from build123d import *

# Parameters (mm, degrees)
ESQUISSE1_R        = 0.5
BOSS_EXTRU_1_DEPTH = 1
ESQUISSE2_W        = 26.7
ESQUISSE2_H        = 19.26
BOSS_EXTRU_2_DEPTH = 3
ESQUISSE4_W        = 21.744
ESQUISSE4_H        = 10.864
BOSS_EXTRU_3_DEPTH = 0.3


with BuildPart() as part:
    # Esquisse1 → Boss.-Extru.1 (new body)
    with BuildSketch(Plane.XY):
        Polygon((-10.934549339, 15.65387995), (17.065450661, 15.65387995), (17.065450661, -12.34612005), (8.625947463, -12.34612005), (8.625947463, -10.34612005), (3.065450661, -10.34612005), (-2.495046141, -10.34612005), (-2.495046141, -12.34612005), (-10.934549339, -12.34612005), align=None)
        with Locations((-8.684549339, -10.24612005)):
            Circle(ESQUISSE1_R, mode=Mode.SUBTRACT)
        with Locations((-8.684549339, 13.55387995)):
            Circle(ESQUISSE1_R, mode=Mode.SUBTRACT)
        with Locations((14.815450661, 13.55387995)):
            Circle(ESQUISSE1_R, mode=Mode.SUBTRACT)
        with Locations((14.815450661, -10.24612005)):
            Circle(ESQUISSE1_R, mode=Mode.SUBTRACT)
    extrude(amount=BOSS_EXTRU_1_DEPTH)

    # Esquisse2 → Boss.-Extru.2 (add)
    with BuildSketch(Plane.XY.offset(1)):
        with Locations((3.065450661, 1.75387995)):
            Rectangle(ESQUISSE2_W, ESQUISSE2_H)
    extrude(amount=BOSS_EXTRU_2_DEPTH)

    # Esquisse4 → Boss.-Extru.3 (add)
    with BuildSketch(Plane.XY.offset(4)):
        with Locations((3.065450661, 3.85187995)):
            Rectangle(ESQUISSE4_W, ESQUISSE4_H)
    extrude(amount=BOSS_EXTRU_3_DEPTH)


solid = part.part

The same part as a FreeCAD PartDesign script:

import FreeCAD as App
import Part
import Sketcher
from FreeCAD import Vector


def add_polygon(sketch, points):
    """Adds a closed chain of lines whose ends are joined by coincident constraints."""
    first, n = sketch.GeometryCount, len(points)
    for a, b in zip(points, points[1:] + points[:1]):
        sketch.addGeometry(Part.LineSegment(App.Vector(*a, 0), App.Vector(*b, 0)), False)
    for i in range(n):
        sketch.addConstraint(Sketcher.Constraint("Coincident", first + i, 2, first + (i + 1) % n, 1))

doc = App.newDocument("Part")
params = doc.addObject("Spreadsheet::Sheet", "Params")
for row, (alias, value) in enumerate([
    ("sketch1_diameter", "1 mm"),
    ("sketch1_width", "28 mm"),
    ("sketch1_height", "2 mm"),
    ("pad1_length", "1 mm"),
    ("sketch2_width", "26.7 mm"),
    ("sketch2_height", "19.26 mm"),
    ("pad2_length", "3 mm"),
    ("pad3_length", "0.3 mm"),
], start=1):
    params.set(f"A{row}", alias)
    params.set(f"B{row}", "=" + value)
    params.setAlias(f"B{row}", alias)

body = doc.addObject("PartDesign::Body", "Body")

sketch1 = body.newObject("Sketcher::SketchObject", "Sketch")
sketch1.AttachmentSupport = (doc.getObject("XY_Plane"), [""])
sketch1.MapMode = "FlatFace"
add_polygon(sketch1, [(17.1, 15.7), (-10.9, 15.7), (-10.9, -12.3), (-2.5, -12.3), (-2.5, -10.3), (8.6, -10.3), (8.6, -12.3), (17.1, -12.3)])
sketch1.addGeometry(Part.Circle(Vector(14.8, -10.2, 0), Vector(0, 0, 1), 0.5), False)
sketch1.addGeometry(Part.Circle(Vector(-8.7, -10.2, 0), Vector(0, 0, 1), 0.5), False)
sketch1.addGeometry(Part.Circle(Vector(14.8, 13.6, 0), Vector(0, 0, 1), 0.5), False)
sketch1.addGeometry(Part.Circle(Vector(-8.7, 13.6, 0), Vector(0, 0, 1), 0.5), False)
sketch1.addConstraint(Sketcher.Constraint("Horizontal", 0))
sketch1.addConstraint(Sketcher.Constraint("Vertical", 1))
sketch1.addConstraint(Sketcher.Constraint("Horizontal", 2))
sketch1.addConstraint(Sketcher.Constraint("Vertical", 3))
sketch1.addConstraint(Sketcher.Constraint("Horizontal", 4))
sketch1.addConstraint(Sketcher.Constraint("Vertical", 5))
sketch1.addConstraint(Sketcher.Constraint("Horizontal", 6))
sketch1.addConstraint(Sketcher.Constraint("Vertical", 7))
sketch1.addConstraint(Sketcher.Constraint("Equal", 8, 9))
sketch1.addConstraint(Sketcher.Constraint("Equal", 9, 10))
sketch1.addConstraint(Sketcher.Constraint("Equal", 10, 11))
sketch1.addConstraint(Sketcher.Constraint("Horizontal", 8, 3, 9, 3))
sketch1.addConstraint(Sketcher.Constraint("Horizontal", 10, 3, 11, 3))
sketch1.addConstraint(Sketcher.Constraint("Horizontal", 2, 2, 5, 2))
sketch1.addConstraint(Sketcher.Constraint("Vertical", 8, 3, 10, 3))
sketch1.addConstraint(Sketcher.Constraint("Vertical", 9, 3, 11, 3))
sketch1.addConstraint(Sketcher.Constraint("Equal", 2, 6))
sketch1.addConstraint(Sketcher.Constraint("Equal", 0, 1))
sketch1.addConstraint(Sketcher.Constraint("Diameter", 8, 1.0))
sketch1.addConstraint(Sketcher.Constraint("DistanceX", 0, 2, 0, 1, 28.0))
sketch1.addConstraint(Sketcher.Constraint("DistanceY", 3, 1, 3, 2, 2.0))
sketch1.addConstraint(Sketcher.Constraint("DistanceX", 9, 3, 8, 3, 23.5))
sketch1.addConstraint(Sketcher.Constraint("DistanceY", 8, 3, 10, 3, 23.8))
sketch1.addConstraint(Sketcher.Constraint("DistanceY", 11, 3, 0, 2, 2.1))
sketch1.addConstraint(Sketcher.Constraint("DistanceX", 0, 2, 11, 3, 2.25))
sketch1.addConstraint(Sketcher.Constraint("DistanceX", 2, 1, 2, 2, 8.439503))
sketch1.addConstraint(Sketcher.Constraint("DistanceX", -1, 1, 8, 3, 14.815451))
sketch1.addConstraint(Sketcher.Constraint("DistanceY", 8, 3, -1, 1, 10.24612))
sketch1.setExpression("Constraints[26]", "Params.sketch1_diameter")
sketch1.setExpression("Constraints[27]", "Params.sketch1_width")
sketch1.setExpression("Constraints[28]", "Params.sketch1_height")
pad1 = body.newObject("PartDesign::Pad", "Pad")
pad1.Profile = sketch1
pad1.setExpression("Length", "Params.pad1_length")

sketch2 = body.newObject("Sketcher::SketchObject", "Sketch001")
sketch2.AttachmentSupport = (doc.getObject("XY_Plane"), [""])
sketch2.MapMode = "FlatFace"
sketch2.AttachmentOffset = App.Placement(Vector(0, 0, 1), App.Rotation())
add_polygon(sketch2, [(-10, 11), (-10, -8), (16, -8), (16, 11)])
sketch2.addConstraint(Sketcher.Constraint("Vertical", 0))
sketch2.addConstraint(Sketcher.Constraint("Horizontal", 1))
sketch2.addConstraint(Sketcher.Constraint("Vertical", 2))
sketch2.addConstraint(Sketcher.Constraint("Horizontal", 3))
sketch2.addConstraint(Sketcher.Constraint("DistanceX", 1, 1, 1, 2, 26.7))
sketch2.addConstraint(Sketcher.Constraint("DistanceY", 0, 2, 0, 1, 19.26))
sketch2.addConstraint(Sketcher.Constraint("DistanceX", 0, 2, -1, 1, 10.284549))
sketch2.addConstraint(Sketcher.Constraint("DistanceY", 0, 2, -1, 1, 7.87612))
sketch2.setExpression("Constraints[8]", "Params.sketch2_width")
sketch2.setExpression("Constraints[9]", "Params.sketch2_height")
pad2 = body.newObject("PartDesign::Pad", "Pad001")
pad2.Profile = sketch2
pad2.setExpression("Length", "Params.pad2_length")

sketch3 = body.newObject("Sketcher::SketchObject", "Sketch002")
sketch3.AttachmentSupport = (doc.getObject("XY_Plane"), [""])
sketch3.MapMode = "FlatFace"
sketch3.AttachmentOffset = App.Placement(Vector(0, 0, 4), App.Rotation())
add_polygon(sketch3, [(-8, 9), (-8, -2), (14, -2), (14, 9)])
sketch3.addConstraint(Sketcher.Constraint("Vertical", 0))
sketch3.addConstraint(Sketcher.Constraint("Horizontal", 1))
sketch3.addConstraint(Sketcher.Constraint("Vertical", 2))
sketch3.addConstraint(Sketcher.Constraint("Horizontal", 3))
sketch3.addConstraint(Sketcher.Constraint("DistanceX", 1, 1, 1, 2, 21.744))
sketch3.addConstraint(Sketcher.Constraint("DistanceY", 0, 2, 0, 1, 10.864))
sketch3.addConstraint(Sketcher.Constraint("DistanceX", 0, 2, -1, 1, 7.806549))
sketch3.addConstraint(Sketcher.Constraint("DistanceY", 0, 2, -1, 1, 1.58012))
pad3 = body.newObject("PartDesign::Pad", "Pad002")
pad3.Profile = sketch3
pad3.setExpression("Length", "Params.pad3_length")

doc.recompute()
